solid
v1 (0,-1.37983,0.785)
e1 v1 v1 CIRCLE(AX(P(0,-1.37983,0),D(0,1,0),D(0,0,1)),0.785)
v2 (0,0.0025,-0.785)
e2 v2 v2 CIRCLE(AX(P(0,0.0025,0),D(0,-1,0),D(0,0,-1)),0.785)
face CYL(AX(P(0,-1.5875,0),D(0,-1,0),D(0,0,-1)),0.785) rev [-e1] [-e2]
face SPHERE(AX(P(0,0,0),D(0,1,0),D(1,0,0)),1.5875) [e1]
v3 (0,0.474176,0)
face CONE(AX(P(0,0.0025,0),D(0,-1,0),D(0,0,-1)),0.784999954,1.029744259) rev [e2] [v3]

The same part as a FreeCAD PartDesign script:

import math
import FreeCAD as App
import Part
import Sketcher

V = App.Vector
Q = App.Units.Quantity

doc = App.newDocument("Part")
body = doc.addObject("PartDesign::Body", "Body")

sketch1 = doc.addObject("Sketcher::SketchObject", "Sketch")
body.addObject(sketch1)
sketch1.AttachmentSupport = (doc.XY_Plane, [""])
sketch1.MapMode = "FlatFace"
sketch1.addGeometry([
    Part.LineSegment(V(0, 1.6, 0), V(0, -1.6, 0)),
    Part.ArcOfCircle(Part.Circle(V(0, 0, 0), V(0, 0, 1), 1.6), math.radians(-90), math.radians(90)),
], False)
sketch1.addConstraint([
    Sketcher.Constraint("Coincident", 0, 1, 1, 2),
    Sketcher.Constraint("Coincident", 1, 1, 0, 2),
    Sketcher.Constraint("Vertical", 0),
    Sketcher.Constraint("Coincident", 1, 3, -1, 1),
    Sketcher.Constraint("PointOnObject", 0, 1, -2),
    Sketcher.Constraint("Radius", 1, Q("0.0625 in")),
])
revolution = doc.addObject("PartDesign::Revolution", "Revolution")
body.addObject(revolution)
revolution.Profile = sketch1
revolution.ReferenceAxis = (sketch1, ["V_Axis"])
revolution.Angle = 360

sketch2 = doc.addObject("Sketcher::SketchObject", "Sketch001")
body.addObject(sketch2)
sketch2.AttachmentSupport = (doc.XZ_Plane, [""])
sketch2.MapMode = "FlatFace"
sketch2.AttachmentOffset = App.Placement(V(0, 0, 0.0625 * 25.4), App.Rotation())
sketch2.addGeometry(Part.Circle(V(0, 0, 0), V(0, 0, 1), 0.8), False)
sketch2.addConstraint([
    Sketcher.Constraint("Coincident", 0, 3, -1, 1),
    Sketcher.Constraint("Diameter", 0, Q("1.57 mm")),
])
doc.recompute()
hole = doc.addObject("PartDesign::Hole", "Hole")
body.addObject(hole)
hole.Profile = sketch2
hole.ThreadType = "None"
hole.Diameter = 1.57
hole.DepthType = "Dimension"
hole.Depth = 1.59
hole.DrillPoint = "Angled"
hole.DrillPointAngle = 118

doc.recompute()
